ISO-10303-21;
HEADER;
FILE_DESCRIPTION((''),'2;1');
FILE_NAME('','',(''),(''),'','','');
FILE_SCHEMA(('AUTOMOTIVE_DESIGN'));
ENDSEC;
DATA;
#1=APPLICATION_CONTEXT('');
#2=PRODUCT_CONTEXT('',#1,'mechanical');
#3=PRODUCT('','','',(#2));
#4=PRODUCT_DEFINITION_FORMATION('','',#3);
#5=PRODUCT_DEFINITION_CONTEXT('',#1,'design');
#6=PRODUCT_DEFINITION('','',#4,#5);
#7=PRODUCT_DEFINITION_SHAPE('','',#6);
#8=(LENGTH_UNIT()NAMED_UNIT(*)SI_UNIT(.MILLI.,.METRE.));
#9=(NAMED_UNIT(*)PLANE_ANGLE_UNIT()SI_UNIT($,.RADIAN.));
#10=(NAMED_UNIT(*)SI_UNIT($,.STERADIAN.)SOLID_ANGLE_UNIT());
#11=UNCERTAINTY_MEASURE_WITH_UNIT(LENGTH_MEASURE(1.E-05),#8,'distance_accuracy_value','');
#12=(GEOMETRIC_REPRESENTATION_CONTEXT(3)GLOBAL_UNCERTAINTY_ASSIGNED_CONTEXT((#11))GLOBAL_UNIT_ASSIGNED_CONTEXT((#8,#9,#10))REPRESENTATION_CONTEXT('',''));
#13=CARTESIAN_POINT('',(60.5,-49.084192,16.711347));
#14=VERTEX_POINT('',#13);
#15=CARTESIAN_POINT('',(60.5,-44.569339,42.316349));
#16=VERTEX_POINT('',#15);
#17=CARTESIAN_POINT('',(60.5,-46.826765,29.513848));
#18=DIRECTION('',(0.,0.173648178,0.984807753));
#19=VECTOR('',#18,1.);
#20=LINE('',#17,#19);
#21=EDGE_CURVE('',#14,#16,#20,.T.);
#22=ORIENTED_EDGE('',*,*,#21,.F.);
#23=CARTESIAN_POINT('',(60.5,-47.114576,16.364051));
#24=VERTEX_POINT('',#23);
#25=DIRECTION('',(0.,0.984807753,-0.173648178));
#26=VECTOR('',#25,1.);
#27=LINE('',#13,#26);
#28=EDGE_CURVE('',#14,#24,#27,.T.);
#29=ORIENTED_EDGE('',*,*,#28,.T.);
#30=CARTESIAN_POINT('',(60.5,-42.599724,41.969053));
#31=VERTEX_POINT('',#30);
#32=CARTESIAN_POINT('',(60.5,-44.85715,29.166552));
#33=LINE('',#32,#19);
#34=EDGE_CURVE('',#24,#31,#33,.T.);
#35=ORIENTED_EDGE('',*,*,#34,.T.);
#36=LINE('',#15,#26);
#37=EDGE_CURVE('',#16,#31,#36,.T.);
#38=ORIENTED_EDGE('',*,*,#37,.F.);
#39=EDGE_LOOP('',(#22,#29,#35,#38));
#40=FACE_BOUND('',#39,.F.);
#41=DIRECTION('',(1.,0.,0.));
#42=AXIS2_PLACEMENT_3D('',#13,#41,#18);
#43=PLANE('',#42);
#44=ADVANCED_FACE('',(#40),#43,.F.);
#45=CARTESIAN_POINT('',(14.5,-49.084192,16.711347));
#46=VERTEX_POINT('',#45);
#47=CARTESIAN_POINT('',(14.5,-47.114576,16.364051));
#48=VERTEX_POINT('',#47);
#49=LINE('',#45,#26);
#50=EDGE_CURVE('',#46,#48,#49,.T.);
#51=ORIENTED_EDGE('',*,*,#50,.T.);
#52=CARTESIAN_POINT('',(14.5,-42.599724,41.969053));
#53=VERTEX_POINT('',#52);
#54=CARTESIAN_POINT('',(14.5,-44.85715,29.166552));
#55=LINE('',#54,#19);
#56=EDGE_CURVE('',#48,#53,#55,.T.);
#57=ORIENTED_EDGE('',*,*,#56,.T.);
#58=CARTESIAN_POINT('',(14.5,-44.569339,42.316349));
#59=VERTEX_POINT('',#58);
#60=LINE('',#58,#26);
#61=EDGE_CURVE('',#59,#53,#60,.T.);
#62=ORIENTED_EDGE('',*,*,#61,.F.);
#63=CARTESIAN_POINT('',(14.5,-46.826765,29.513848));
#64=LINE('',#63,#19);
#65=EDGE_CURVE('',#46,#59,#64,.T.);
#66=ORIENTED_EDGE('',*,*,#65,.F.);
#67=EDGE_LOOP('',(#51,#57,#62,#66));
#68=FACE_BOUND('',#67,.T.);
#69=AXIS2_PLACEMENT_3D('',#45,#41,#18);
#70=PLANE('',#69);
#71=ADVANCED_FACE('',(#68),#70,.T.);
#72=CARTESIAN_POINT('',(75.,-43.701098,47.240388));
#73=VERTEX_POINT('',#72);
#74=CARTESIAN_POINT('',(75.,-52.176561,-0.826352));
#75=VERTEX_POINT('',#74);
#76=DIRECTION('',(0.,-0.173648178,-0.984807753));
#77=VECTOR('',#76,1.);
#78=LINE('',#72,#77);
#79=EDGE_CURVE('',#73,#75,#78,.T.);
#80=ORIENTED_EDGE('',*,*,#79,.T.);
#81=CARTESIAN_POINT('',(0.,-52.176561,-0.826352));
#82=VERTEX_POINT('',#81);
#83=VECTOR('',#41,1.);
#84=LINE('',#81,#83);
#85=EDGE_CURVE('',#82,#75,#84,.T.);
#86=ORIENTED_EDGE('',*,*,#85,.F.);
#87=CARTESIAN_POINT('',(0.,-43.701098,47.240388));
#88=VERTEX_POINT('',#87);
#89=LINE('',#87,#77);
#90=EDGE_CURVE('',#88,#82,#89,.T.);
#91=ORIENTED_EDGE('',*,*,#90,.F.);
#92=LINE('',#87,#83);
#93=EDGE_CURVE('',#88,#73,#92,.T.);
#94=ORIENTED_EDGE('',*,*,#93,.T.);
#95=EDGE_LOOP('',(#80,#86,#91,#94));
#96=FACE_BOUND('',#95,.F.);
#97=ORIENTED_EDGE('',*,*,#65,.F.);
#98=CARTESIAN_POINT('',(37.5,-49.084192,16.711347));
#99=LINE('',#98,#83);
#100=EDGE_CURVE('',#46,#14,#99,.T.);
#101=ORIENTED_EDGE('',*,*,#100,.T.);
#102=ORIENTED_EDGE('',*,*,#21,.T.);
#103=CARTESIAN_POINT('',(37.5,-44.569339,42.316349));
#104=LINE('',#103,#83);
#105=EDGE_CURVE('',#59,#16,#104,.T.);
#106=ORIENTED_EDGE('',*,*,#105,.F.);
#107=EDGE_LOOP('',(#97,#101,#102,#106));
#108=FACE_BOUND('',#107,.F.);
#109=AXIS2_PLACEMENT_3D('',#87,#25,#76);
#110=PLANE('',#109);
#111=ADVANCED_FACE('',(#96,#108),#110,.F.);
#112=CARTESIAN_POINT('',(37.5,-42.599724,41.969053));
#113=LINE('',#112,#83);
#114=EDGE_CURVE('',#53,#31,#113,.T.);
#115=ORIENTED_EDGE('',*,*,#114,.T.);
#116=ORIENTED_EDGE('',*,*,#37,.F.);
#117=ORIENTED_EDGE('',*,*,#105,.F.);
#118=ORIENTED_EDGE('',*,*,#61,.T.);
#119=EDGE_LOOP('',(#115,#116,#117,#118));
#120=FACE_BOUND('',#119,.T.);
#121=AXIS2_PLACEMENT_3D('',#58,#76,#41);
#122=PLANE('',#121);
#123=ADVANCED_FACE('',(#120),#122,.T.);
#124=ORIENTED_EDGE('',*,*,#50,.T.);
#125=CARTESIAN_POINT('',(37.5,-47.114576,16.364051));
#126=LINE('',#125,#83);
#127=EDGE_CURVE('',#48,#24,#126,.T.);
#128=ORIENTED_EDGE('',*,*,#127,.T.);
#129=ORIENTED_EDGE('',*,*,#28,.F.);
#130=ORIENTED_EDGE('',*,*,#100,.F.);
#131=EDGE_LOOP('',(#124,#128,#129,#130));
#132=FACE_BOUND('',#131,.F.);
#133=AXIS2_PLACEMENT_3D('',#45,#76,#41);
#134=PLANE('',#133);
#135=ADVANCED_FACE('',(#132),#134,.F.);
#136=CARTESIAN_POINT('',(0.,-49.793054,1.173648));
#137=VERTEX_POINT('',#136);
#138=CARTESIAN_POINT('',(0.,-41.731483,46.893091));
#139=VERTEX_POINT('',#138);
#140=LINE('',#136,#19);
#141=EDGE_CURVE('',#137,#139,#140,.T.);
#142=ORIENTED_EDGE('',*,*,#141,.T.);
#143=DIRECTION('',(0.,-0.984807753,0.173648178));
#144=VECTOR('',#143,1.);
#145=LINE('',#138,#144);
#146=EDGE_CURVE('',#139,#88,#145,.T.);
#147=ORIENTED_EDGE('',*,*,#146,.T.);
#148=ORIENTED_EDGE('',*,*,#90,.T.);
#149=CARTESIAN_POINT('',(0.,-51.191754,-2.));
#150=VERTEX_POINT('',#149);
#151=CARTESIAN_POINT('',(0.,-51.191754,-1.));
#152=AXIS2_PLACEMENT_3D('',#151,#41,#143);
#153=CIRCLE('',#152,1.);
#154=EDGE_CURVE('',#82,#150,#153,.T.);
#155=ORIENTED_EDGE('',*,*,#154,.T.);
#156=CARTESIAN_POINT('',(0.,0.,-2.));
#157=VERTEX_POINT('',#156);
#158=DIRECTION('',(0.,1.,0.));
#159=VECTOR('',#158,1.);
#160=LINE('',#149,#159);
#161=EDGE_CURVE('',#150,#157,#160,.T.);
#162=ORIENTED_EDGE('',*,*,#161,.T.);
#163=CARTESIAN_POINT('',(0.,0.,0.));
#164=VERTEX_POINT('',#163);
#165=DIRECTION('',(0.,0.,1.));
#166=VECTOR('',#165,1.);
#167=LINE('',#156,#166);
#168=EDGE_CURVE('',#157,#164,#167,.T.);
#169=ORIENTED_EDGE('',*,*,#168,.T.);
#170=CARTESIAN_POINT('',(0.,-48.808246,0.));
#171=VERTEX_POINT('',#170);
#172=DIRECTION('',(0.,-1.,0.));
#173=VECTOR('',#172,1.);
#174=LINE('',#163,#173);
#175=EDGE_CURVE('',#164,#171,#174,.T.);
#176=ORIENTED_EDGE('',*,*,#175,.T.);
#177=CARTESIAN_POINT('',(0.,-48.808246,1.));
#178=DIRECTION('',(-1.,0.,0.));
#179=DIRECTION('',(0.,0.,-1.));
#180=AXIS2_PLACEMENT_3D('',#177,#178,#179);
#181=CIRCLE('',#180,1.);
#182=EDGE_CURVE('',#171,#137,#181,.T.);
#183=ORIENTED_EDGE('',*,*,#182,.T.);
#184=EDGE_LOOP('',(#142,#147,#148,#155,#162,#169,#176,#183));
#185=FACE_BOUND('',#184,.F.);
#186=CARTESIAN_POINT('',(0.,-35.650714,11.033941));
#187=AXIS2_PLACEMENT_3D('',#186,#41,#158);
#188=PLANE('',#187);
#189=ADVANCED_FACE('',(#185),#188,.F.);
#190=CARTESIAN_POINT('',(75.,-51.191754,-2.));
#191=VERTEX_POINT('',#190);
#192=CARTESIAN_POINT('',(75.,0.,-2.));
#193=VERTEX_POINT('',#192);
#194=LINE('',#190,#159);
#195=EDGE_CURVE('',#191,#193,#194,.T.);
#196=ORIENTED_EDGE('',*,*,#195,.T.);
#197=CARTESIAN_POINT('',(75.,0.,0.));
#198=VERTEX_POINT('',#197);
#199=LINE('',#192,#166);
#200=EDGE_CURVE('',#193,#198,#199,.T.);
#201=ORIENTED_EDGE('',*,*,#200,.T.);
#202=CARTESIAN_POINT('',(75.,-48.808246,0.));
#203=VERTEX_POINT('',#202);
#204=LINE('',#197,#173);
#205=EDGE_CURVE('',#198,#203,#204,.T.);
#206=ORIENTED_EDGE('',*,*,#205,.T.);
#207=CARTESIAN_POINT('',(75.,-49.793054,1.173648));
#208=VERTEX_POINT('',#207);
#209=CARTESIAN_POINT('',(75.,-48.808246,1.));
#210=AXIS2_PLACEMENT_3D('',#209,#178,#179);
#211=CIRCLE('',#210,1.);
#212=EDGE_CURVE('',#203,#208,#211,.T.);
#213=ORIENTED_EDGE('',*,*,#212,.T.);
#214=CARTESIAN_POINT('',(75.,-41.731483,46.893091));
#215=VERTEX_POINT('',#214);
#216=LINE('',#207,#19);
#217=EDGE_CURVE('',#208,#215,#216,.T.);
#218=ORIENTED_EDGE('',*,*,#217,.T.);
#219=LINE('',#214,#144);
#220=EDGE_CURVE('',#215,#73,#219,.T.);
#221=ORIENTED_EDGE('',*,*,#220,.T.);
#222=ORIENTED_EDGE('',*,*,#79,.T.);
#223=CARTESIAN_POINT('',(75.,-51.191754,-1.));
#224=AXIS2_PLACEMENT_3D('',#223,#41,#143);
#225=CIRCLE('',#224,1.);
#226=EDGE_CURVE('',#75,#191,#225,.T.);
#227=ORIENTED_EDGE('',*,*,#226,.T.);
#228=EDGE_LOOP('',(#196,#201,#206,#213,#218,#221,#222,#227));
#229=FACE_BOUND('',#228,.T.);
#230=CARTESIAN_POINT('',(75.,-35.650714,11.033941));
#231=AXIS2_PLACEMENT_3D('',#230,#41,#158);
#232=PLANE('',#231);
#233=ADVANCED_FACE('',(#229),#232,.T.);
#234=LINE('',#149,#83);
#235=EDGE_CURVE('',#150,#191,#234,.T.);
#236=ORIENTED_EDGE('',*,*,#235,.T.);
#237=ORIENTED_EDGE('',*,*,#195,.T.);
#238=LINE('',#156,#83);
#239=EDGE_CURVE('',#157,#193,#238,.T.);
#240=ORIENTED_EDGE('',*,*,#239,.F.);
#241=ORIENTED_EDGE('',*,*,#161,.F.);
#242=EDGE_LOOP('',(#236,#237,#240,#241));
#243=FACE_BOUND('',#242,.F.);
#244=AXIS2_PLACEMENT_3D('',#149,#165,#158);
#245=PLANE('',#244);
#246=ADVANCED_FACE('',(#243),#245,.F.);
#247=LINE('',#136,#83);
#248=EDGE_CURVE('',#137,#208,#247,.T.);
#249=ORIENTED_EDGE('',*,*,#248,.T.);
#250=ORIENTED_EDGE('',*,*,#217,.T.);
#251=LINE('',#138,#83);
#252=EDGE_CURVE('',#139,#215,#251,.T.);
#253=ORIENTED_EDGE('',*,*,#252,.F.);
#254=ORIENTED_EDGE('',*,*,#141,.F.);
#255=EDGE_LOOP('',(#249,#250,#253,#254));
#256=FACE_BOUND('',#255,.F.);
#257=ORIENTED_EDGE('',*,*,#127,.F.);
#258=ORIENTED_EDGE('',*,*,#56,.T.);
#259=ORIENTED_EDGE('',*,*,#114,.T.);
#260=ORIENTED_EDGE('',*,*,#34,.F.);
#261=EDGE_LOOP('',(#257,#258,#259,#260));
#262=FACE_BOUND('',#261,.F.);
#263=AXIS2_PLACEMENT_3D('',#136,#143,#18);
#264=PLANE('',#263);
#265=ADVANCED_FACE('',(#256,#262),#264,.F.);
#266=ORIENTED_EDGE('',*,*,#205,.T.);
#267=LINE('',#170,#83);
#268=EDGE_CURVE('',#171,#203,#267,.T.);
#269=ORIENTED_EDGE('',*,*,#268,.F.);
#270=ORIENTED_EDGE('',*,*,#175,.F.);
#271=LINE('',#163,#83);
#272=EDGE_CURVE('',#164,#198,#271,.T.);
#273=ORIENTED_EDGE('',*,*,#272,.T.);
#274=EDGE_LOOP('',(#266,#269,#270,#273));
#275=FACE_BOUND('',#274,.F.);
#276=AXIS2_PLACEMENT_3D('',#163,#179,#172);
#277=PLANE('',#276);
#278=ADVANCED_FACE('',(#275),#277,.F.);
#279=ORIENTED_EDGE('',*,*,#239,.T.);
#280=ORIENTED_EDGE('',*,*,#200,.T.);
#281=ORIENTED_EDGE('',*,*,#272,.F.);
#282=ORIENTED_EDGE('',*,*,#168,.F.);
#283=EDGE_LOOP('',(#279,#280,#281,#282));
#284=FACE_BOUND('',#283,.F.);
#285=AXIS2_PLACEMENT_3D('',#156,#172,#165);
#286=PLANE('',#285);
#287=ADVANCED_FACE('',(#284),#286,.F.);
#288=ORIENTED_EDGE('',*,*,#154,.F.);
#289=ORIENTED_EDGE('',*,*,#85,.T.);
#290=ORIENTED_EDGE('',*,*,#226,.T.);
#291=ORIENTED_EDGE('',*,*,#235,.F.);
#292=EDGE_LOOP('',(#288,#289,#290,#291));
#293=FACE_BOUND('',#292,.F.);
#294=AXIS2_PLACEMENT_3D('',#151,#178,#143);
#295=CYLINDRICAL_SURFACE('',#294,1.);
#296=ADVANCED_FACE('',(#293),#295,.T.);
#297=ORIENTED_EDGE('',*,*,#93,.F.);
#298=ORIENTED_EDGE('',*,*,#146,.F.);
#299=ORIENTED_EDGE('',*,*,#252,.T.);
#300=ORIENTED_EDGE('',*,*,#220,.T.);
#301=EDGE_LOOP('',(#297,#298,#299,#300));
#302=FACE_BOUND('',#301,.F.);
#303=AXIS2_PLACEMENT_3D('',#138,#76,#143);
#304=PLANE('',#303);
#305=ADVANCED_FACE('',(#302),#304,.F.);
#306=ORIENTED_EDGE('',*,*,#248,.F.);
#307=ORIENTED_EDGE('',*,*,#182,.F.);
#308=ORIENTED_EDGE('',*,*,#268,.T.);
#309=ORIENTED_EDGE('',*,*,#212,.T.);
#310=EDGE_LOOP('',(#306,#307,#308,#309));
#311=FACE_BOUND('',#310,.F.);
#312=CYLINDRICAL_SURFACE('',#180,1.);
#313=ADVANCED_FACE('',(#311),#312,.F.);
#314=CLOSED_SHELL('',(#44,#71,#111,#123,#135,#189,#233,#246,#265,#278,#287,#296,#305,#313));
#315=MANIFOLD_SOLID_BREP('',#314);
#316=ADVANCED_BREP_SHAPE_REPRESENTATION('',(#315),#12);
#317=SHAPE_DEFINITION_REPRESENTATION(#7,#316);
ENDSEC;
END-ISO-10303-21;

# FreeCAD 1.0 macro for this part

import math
import FreeCAD as App
import Part
import Sketcher
Q = App.Units.Quantity

doc = App.newDocument("Part")
body = doc.addObject("PartDesign::Body", "Body")

# Sketch on YZ plane
sketch1 = body.newObject("Sketcher::SketchObject", "Sketch")
sketch1.AttachmentSupport = (doc.getObject("YZ_Plane"), [""])
sketch1.MapMode = "FlatFace"
sketch1.addGeometry([
    Part.LineSegment(App.Vector(0, -2, 0), App.Vector(0, 0, 0)),  # 0
    Part.LineSegment(App.Vector(0, 0, 0), App.Vector(-48.8, 0, 0)),  # 1
    Part.ArcOfCircle(Part.Circle(App.Vector(-48.8, 1, 0), App.Vector(0, 0, 1), 1), math.radians(170), math.radians(270)),  # 2
    Part.LineSegment(App.Vector(-49.8, 1.2, 0), App.Vector(-41.7, 46.9, 0)),  # 3
    Part.LineSegment(App.Vector(-41.7, 46.9, 0), App.Vector(-43.7, 47.2, 0)),  # 4
    Part.LineSegment(App.Vector(-43.7, 47.2, 0), App.Vector(-52.2, -0.8, 0)),  # 5
    Part.ArcOfCircle(Part.Circle(App.Vector(-51.2, -1, 0), App.Vector(0, 0, 1), 1), math.radians(170), math.radians(270)),  # 6
    Part.LineSegment(App.Vector(-51.2, -2, 0), App.Vector(0, -2, 0)),  # 7
], False)
sketch1.addConstraint([
    Sketcher.Constraint("Coincident", 0, 2, 1, 1),
    Sketcher.Constraint("Tangent", 1, 2, 2, 2),
    Sketcher.Constraint("Tangent", 2, 1, 3, 1),
    Sketcher.Constraint("Coincident", 3, 2, 4, 1),
    Sketcher.Constraint("Coincident", 4, 2, 5, 1),
    Sketcher.Constraint("Tangent", 5, 2, 6, 1),
    Sketcher.Constraint("Tangent", 6, 2, 7, 1),
    Sketcher.Constraint("Coincident", 7, 2, 0, 1),
    Sketcher.Constraint("Vertical", 0),
    Sketcher.Constraint("Horizontal", 1),
    Sketcher.Constraint("Horizontal", 7),
    Sketcher.Constraint("Coincident", 0, 2, -1, 1),
    Sketcher.Constraint("Equal", 2, 6),
    Sketcher.Constraint("Perpendicular", 3, 4),
    Sketcher.Constraint("Perpendicular", 4, 5),
    Sketcher.Constraint("Radius", 2, Q("1 mm")),
    Sketcher.Constraint("DistanceY", 0, 1, 0, 2, Q("2 mm")),
    Sketcher.Constraint("Angle", 3, Q("80 deg")),
    Sketcher.Constraint("Distance", 4, Q("2 mm")),
    Sketcher.Constraint("DistanceX", 4, 2, -1, 1, Q("43.701098 mm")),
    Sketcher.Constraint("Distance", 3, Q("46.424739 mm")),
])
pad1 = body.newObject("PartDesign::Pad", "Pad")
pad1.Profile = sketch1
pad1.Length = 75

# Sketch on an angled plane
sketch2 = body.newObject("Sketcher::SketchObject", "Sketch001")
sketch2.Placement = App.Placement(App.Vector(0, -50.461931, 8.8978), App.Rotation(App.Vector(1, 0, 0), App.Vector(0, 0.173648178, 0.984807753), App.Vector(0, -0.984807753, 0.173648178), "ZXY"))
sketch2.addGeometry([
    Part.LineSegment(App.Vector(14, 34, 0), App.Vector(14, 8, 0)),
    Part.LineSegment(App.Vector(14, 8, 0), App.Vector(60, 8, 0)),
    Part.LineSegment(App.Vector(60, 8, 0), App.Vector(60, 34, 0)),
    Part.LineSegment(App.Vector(60, 34, 0), App.Vector(14, 34, 0)),
], False)
sketch2.addConstraint([
    Sketcher.Constraint("Coincident", 0, 2, 1, 1),
    Sketcher.Constraint("Coincident", 1, 2, 2, 1),
    Sketcher.Constraint("Coincident", 2, 2, 3, 1),
    Sketcher.Constraint("Coincident", 3, 2, 0, 1),
    Sketcher.Constraint("Vertical", 0),
    Sketcher.Constraint("Horizontal", 1),
    Sketcher.Constraint("Vertical", 2),
    Sketcher.Constraint("Horizontal", 3),
    Sketcher.Constraint("DistanceX", 1, 1, 1, 2, Q("46 mm")),
    Sketcher.Constraint("DistanceY", 0, 2, 0, 1, Q("26 mm")),
    Sketcher.Constraint("DistanceX", -1, 1, 0, 2, Q("14.5 mm")),
    Sketcher.Constraint("DistanceY", -1, 1, 0, 2, Q("7.934084 mm")),
])
pocket1 = body.newObject("PartDesign::Pocket", "Pocket")
pocket1.Profile = sketch2
pocket1.Type = "ThroughAll"

doc.recompute()
